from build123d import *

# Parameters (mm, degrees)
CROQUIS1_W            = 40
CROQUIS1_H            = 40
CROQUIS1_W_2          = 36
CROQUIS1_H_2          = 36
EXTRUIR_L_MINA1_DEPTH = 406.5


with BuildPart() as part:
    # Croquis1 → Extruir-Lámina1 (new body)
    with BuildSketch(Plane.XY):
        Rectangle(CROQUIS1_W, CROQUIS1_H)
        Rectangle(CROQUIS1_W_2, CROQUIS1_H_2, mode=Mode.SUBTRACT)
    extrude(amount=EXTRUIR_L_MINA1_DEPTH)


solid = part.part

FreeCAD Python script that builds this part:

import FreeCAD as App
import Part
import Sketcher

V = App.Vector
Q = App.Units.Quantity

doc = App.newDocument("Part")
body = doc.addObject("PartDesign::Body", "Body")

# Sketch on XY plane
sketch1 = body.newObject("Sketcher::SketchObject", "Sketch")
sketch1.AttachmentSupport = (doc.getObject("XY_Plane"), [""])
sketch1.MapMode = "FlatFace"
sketch1.addGeometry(Part.LineSegment(V(-20, 20, 0), V(-20, -20, 0)), False)
sketch1.addGeometry(Part.LineSegment(V(-20, -20, 0), V(20, -20, 0)), False)
sketch1.addGeometry(Part.LineSegment(V(20, -20, 0), V(20, 20, 0)), False)
sketch1.addGeometry(Part.LineSegment(V(20, 20, 0), V(-20, 20, 0)), False)
sketch1.addGeometry(Part.LineSegment(V(18, -18, 0), V(-18, -18, 0)), False)
sketch1.addGeometry(Part.LineSegment(V(-18, -18, 0), V(-18, 18, 0)), False)
sketch1.addGeometry(Part.LineSegment(V(-18, 18, 0), V(18, 18, 0)), False)
sketch1.addGeometry(Part.LineSegment(V(18, 18, 0), V(18, -18, 0)), False)
sketch1.addConstraint(Sketcher.Constraint("Coincident", 0, 2, 1, 1))
sketch1.addConstraint(Sketcher.Constraint("Coincident", 1, 2, 2, 1))
sketch1.addConstraint(Sketcher.Constraint("Coincident", 2, 2, 3, 1))
sketch1.addConstraint(Sketcher.Constraint("Coincident", 3, 2, 0, 1))
sketch1.addConstraint(Sketcher.Constraint("Coincident", 4, 2, 5, 1))
sketch1.addConstraint(Sketcher.Constraint("Coincident", 5, 2, 6, 1))
sketch1.addConstraint(Sketcher.Constraint("Coincident", 6, 2, 7, 1))
sketch1.addConstraint(Sketcher.Constraint("Coincident", 7, 2, 4, 1))
sketch1.addConstraint(Sketcher.Constraint("Vertical", 0))
sketch1.addConstraint(Sketcher.Constraint("Horizontal", 1))
sketch1.addConstraint(Sketcher.Constraint("Vertical", 2))
sketch1.addConstraint(Sketcher.Constraint("Horizontal", 3))
sketch1.addConstraint(Sketcher.Constraint("Horizontal", 4))
sketch1.addConstraint(Sketcher.Constraint("Vertical", 5))
sketch1.addConstraint(Sketcher.Constraint("Horizontal", 6))
sketch1.addConstraint(Sketcher.Constraint("Vertical", 7))
sketch1.addConstraint(Sketcher.Constraint("Symmetric", 0, 2, 2, 2, -1, 1))
sketch1.addConstraint(Sketcher.Constraint("Symmetric", 4, 2, 6, 2, -1, 1))
sketch1.addConstraint(Sketcher.Constraint("Equal", 3, 0))
sketch1.addConstraint(Sketcher.Constraint("Equal", 6, 5))
sketch1.addConstraint(Sketcher.Constraint("DistanceX", 1, 1, 1, 2, Q("40 mm")))
sketch1.addConstraint(Sketcher.Constraint("DistanceX", 4, 2, 4, 1, Q("36 mm")))
pad1 = body.newObject("PartDesign::Pad", "Pad")
pad1.Profile = sketch1
pad1.Length = 406.5

doc.recompute()
